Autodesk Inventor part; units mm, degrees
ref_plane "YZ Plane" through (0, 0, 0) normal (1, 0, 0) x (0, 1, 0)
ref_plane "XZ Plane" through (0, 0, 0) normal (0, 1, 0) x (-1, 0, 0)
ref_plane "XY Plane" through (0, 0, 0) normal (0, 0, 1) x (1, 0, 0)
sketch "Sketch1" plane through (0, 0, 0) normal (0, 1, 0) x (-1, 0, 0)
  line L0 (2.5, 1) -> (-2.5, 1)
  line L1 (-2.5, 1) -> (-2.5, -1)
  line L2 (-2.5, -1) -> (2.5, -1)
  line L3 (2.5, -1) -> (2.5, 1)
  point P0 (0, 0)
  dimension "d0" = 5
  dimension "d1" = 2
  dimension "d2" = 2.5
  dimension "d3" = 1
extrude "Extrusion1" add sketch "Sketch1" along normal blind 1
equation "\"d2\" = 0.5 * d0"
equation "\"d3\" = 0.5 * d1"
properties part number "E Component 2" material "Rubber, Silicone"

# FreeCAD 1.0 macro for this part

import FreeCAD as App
import Part
import Sketcher
from FreeCAD import Vector

doc = App.newDocument("Part")
body = doc.addObject("PartDesign::Body", "Body")

# Sketch on XZ plane
sketch1 = body.newObject("Sketcher::SketchObject", "Sketch")
sketch1.AttachmentSupport = (doc.getObject("XZ_Plane"), [""])
sketch1.MapMode = "FlatFace"
sketch1.addGeometry(Part.LineSegment(Vector(-2.5, -1, 0), Vector(-2.5, 1, 0)), False)
sketch1.addGeometry(Part.LineSegment(Vector(-2.5, 1, 0), Vector(2.5, 1, 0)), False)
sketch1.addGeometry(Part.LineSegment(Vector(2.5, 1, 0), Vector(2.5, -1, 0)), False)
sketch1.addGeometry(Part.LineSegment(Vector(2.5, -1, 0), Vector(-2.5, -1, 0)), False)
sketch1.addConstraint(Sketcher.Constraint("Coincident", 0, 2, 1, 1))
sketch1.addConstraint(Sketcher.Constraint("Coincident", 1, 2, 2, 1))
sketch1.addConstraint(Sketcher.Constraint("Coincident", 2, 2, 3, 1))
sketch1.addConstraint(Sketcher.Constraint("Coincident", 3, 2, 0, 1))
sketch1.addConstraint(Sketcher.Constraint("Vertical", 0))
sketch1.addConstraint(Sketcher.Constraint("Horizontal", 1))
sketch1.addConstraint(Sketcher.Constraint("Vertical", 2))
sketch1.addConstraint(Sketcher.Constraint("Horizontal", 3))
sketch1.addConstraint(Sketcher.Constraint("Symmetric", 0, 2, 2, 2, -1, 1))
sketch1.addConstraint(Sketcher.Constraint("DistanceX", 1, 1, 1, 2, 5.0))
sketch1.addConstraint(Sketcher.Constraint("DistanceY", 0, 1, 0, 2, 2.0))
pad1 = body.newObject("PartDesign::Pad", "Pad")
pad1.Profile = sketch1
pad1.Length = 1
pad1.Reversed = True

doc.recompute()
